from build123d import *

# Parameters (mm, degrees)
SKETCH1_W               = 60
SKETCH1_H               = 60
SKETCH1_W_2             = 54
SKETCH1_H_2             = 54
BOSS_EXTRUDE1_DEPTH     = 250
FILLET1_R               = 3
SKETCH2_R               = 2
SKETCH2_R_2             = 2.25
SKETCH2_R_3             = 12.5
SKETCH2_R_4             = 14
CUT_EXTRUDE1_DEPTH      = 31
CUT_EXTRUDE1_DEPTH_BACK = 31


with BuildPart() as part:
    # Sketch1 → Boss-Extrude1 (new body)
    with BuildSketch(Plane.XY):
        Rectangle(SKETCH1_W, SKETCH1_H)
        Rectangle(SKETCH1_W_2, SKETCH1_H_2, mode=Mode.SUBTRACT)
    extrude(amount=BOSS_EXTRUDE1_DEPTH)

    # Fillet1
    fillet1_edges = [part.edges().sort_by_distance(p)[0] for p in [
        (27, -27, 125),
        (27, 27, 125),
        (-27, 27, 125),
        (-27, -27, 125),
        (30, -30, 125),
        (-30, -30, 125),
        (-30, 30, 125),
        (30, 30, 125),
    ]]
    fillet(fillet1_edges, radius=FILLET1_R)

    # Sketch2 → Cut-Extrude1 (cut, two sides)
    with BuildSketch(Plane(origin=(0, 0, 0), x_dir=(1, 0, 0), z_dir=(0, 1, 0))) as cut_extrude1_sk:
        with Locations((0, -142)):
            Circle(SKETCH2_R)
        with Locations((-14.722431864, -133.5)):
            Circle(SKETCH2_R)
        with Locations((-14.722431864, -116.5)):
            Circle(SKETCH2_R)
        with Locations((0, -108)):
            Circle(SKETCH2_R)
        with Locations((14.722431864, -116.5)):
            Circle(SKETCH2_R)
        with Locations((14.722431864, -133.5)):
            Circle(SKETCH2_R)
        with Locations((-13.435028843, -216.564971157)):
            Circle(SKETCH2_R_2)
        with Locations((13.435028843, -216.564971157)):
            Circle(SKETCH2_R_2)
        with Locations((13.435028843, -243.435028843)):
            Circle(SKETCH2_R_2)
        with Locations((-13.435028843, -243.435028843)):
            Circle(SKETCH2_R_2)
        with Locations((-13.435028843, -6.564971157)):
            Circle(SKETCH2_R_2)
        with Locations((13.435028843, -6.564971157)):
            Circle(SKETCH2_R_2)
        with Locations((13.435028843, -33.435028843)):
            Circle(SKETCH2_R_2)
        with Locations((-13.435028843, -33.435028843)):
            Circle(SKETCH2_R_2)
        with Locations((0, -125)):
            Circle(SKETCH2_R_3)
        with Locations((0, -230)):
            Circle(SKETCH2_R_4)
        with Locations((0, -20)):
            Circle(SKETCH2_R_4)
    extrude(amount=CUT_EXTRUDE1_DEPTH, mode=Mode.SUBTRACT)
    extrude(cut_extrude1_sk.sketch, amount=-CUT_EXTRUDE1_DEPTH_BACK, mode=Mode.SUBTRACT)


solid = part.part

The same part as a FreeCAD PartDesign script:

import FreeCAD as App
import Part
import Sketcher

V = App.Vector


def edges_at(feature, points):
    """Names of the edges that pass closest to the given points."""
    edges = feature.Shape.Edges
    near = lambda p: min(range(len(edges)), key=lambda i: edges[i].distToShape(Part.Vertex(*p))[0])
    return sorted({f"Edge{near(p) + 1}" for p in points})


def add_polygon(sketch, points):
    """Adds a closed chain of lines whose ends are joined by coincident constraints."""
    first, n = sketch.GeometryCount, len(points)
    for a, b in zip(points, points[1:] + points[:1]):
        sketch.addGeometry(Part.LineSegment(App.Vector(*a, 0), App.Vector(*b, 0)), False)
    for i in range(n):
        sketch.addConstraint(Sketcher.Constraint("Coincident", first + i, 2, first + (i + 1) % n, 1))

doc = App.newDocument("Part")
params = doc.addObject("Spreadsheet::Sheet", "Params")
for row, (alias, value) in enumerate([
    ("sketch1_width", "60 mm"),
    ("sketch1_width2", "54 mm"),
    ("pad1_length", "250 mm"),
    ("fillet_radius", "3 mm"),
    ("sketch2_diameter", "4 mm"),
    ("sketch2_diameter2", "25 mm"),
    ("sketch2_diameter3", "28 mm"),
    ("sketch2_diameter4", "4.5 mm"),
], start=1):
    params.set(f"A{row}", alias)
    params.set(f"B{row}", "=" + value)
    params.setAlias(f"B{row}", alias)

body = doc.addObject("PartDesign::Body", "Body")

sketch1 = body.newObject("Sketcher::SketchObject", "Sketch")
sketch1.AttachmentSupport = (doc.getObject("XY_Plane"), [""])
sketch1.MapMode = "FlatFace"
add_polygon(sketch1, [(-30, 30), (-30, -30), (30, -30), (30, 30)])
add_polygon(sketch1, [(27, -27), (-27, -27), (-27, 27), (27, 27)])
sketch1.addConstraint([
    Sketcher.Constraint("Vertical", 0),
    Sketcher.Constraint("Horizontal", 1),
    Sketcher.Constraint("Vertical", 2),
    Sketcher.Constraint("Horizontal", 3),
    Sketcher.Constraint("Horizontal", 4),
    Sketcher.Constraint("Vertical", 5),
    Sketcher.Constraint("Horizontal", 6),
    Sketcher.Constraint("Vertical", 7),
    Sketcher.Constraint("Symmetric", 0, 2, 2, 2, -1, 1),
    Sketcher.Constraint("Symmetric", 4, 2, 6, 2, -1, 1),
    Sketcher.Constraint("Equal", 3, 0),
    Sketcher.Constraint("Equal", 6, 5),
    Sketcher.Constraint("DistanceX", 1, 1, 1, 2, 60.0),
    Sketcher.Constraint("DistanceX", 4, 2, 4, 1, 54.0),
])
sketch1.setExpression("Constraints[20]", "Params.sketch1_width")
sketch1.setExpression("Constraints[21]", "Params.sketch1_width2")
pad1 = body.newObject("PartDesign::Pad", "Pad")
pad1.Profile = sketch1
pad1.setExpression("Length", "Params.pad1_length")
doc.recompute()

fillet = body.newObject("PartDesign::Fillet", "Fillet")
fillet.Base = (pad1, edges_at(pad1, [
    (27, -27, 125),
    (27, 27, 125),
    (-27, 27, 125),
    (-27, -27, 125),
    (30, -30, 125),
    (-30, -30, 125),
    (-30, 30, 125),
    (30, 30, 125),
]))
fillet.setExpression("Radius", "Params.fillet_radius")

sketch2 = body.newObject("Sketcher::SketchObject", "Sketch001")
sketch2.AttachmentSupport = (doc.getObject("XZ_Plane"), [""])
sketch2.MapMode = "FlatFace"
sketch2.addGeometry([
    Part.Circle(V(0, 142, 0), V(0, 0, 1), 2),
    Part.Circle(V(-14.7, 133.5, 0), V(0, 0, 1), 2),
    Part.Circle(V(-14.7, 116.5, 0), V(0, 0, 1), 2),
    Part.Circle(V(0, 108, 0), V(0, 0, 1), 2),
    Part.Circle(V(14.7, 116.5, 0), V(0, 0, 1), 2),
    Part.Circle(V(14.7, 133.5, 0), V(0, 0, 1), 2),
    Part.Circle(V(-13.4, 216.6, 0), V(0, 0, 1), 2.2),
    Part.Circle(V(13.4, 216.6, 0), V(0, 0, 1), 2.2),
    Part.Circle(V(13.4, 243.4, 0), V(0, 0, 1), 2.2),
    Part.Circle(V(-13.4, 243.4, 0), V(0, 0, 1), 2.2),
    Part.Circle(V(-13.4, 6.6, 0), V(0, 0, 1), 2.2),
    Part.Circle(V(13.4, 6.6, 0), V(0, 0, 1), 2.2),
    Part.Circle(V(13.4, 33.4, 0), V(0, 0, 1), 2.2),
    Part.Circle(V(-13.4, 33.4, 0), V(0, 0, 1), 2.2),
    Part.Circle(V(0, 125, 0), V(0, 0, 1), 12.5),
    Part.Circle(V(0, 230, 0), V(0, 0, 1), 14),
    Part.Circle(V(0, 20, 0), V(0, 0, 1), 14),
], False)
sketch2.addConstraint([
    Sketcher.Constraint("Equal", 0, 1),
    Sketcher.Constraint("Equal", 1, 2),
    Sketcher.Constraint("Equal", 2, 3),
    Sketcher.Constraint("Equal", 3, 4),
    Sketcher.Constraint("Equal", 4, 5),
    Sketcher.Constraint("Equal", 6, 7),
    Sketcher.Constraint("Equal", 7, 8),
    Sketcher.Constraint("Equal", 8, 9),
    Sketcher.Constraint("Equal", 9, 10),
    Sketcher.Constraint("Equal", 10, 11),
    Sketcher.Constraint("Equal", 11, 12),
    Sketcher.Constraint("Equal", 12, 13),
    Sketcher.Constraint("Equal", 15, 16),
    Sketcher.Constraint("Symmetric", 2, 3, 4, 3, -2),
    Sketcher.Constraint("Symmetric", 1, 3, 5, 3, -2),
    Sketcher.Constraint("Symmetric", 6, 3, 7, 3, -2),
    Sketcher.Constraint("Symmetric", 8, 3, 9, 3, -2),
    Sketcher.Constraint("Symmetric", 10, 3, 11, 3, -2),
    Sketcher.Constraint("Symmetric", 12, 3, 13, 3, -2),
    Sketcher.Constraint("PointOnObject", 0, 3, -2),
    Sketcher.Constraint("PointOnObject", 3, 3, -2),
    Sketcher.Constraint("PointOnObject", 14, 3, -2),
    Sketcher.Constraint("PointOnObject", 15, 3, -2),
    Sketcher.Constraint("PointOnObject", 16, 3, -2),
    Sketcher.Constraint("Vertical", 1, 3, 2, 3),
    Sketcher.Constraint("Vertical", 7, 3, 8, 3),
    Sketcher.Constraint("Vertical", 9, 3, 10, 3),
    Sketcher.Constraint("Vertical", 11, 3, 12, 3),
    Sketcher.Constraint("Diameter", 0, 4.0),
    Sketcher.Constraint("Diameter", 14, 25.0),
    Sketcher.Constraint("Diameter", 15, 28.0),
    Sketcher.Constraint("Diameter", 6, 4.5),
    Sketcher.Constraint("DistanceY", -1, 1, 0, 3, 142.0),
    Sketcher.Constraint("DistanceY", -1, 1, 3, 3, 108.0),
    Sketcher.Constraint("DistanceY", -1, 1, 14, 3, 125.0),
    Sketcher.Constraint("DistanceY", -1, 1, 15, 3, 230.0),
    Sketcher.Constraint("DistanceY", -1, 1, 16, 3, 20.0),
    Sketcher.Constraint("DistanceY", 2, 3, 1, 3, 17.0),
    Sketcher.Constraint("DistanceY", -1, 1, 1, 3, 133.5),
    Sketcher.Constraint("DistanceX", 1, 3, -1, 1, 14.722432),
    Sketcher.Constraint("DistanceX", 6, 3, -1, 1, 13.435029),
    Sketcher.Constraint("DistanceY", -1, 1, 6, 3, 216.564971),
    Sketcher.Constraint("DistanceY", -1, 1, 8, 3, 243.435029),
    Sketcher.Constraint("DistanceY", -1, 1, 10, 3, 6.564971),
    Sketcher.Constraint("DistanceY", -1, 1, 12, 3, 33.435029),
])
sketch2.setExpression("Constraints[28]", "Params.sketch2_diameter")
sketch2.setExpression("Constraints[29]", "Params.sketch2_diameter2")
sketch2.setExpression("Constraints[30]", "Params.sketch2_diameter3")
sketch2.setExpression("Constraints[31]", "Params.sketch2_diameter4")
pocket1 = body.newObject("PartDesign::Pocket", "Pocket")
pocket1.Profile = sketch2
pocket1.Type = "ThroughAll"
pocket1.Midplane = True

doc.recompute()
